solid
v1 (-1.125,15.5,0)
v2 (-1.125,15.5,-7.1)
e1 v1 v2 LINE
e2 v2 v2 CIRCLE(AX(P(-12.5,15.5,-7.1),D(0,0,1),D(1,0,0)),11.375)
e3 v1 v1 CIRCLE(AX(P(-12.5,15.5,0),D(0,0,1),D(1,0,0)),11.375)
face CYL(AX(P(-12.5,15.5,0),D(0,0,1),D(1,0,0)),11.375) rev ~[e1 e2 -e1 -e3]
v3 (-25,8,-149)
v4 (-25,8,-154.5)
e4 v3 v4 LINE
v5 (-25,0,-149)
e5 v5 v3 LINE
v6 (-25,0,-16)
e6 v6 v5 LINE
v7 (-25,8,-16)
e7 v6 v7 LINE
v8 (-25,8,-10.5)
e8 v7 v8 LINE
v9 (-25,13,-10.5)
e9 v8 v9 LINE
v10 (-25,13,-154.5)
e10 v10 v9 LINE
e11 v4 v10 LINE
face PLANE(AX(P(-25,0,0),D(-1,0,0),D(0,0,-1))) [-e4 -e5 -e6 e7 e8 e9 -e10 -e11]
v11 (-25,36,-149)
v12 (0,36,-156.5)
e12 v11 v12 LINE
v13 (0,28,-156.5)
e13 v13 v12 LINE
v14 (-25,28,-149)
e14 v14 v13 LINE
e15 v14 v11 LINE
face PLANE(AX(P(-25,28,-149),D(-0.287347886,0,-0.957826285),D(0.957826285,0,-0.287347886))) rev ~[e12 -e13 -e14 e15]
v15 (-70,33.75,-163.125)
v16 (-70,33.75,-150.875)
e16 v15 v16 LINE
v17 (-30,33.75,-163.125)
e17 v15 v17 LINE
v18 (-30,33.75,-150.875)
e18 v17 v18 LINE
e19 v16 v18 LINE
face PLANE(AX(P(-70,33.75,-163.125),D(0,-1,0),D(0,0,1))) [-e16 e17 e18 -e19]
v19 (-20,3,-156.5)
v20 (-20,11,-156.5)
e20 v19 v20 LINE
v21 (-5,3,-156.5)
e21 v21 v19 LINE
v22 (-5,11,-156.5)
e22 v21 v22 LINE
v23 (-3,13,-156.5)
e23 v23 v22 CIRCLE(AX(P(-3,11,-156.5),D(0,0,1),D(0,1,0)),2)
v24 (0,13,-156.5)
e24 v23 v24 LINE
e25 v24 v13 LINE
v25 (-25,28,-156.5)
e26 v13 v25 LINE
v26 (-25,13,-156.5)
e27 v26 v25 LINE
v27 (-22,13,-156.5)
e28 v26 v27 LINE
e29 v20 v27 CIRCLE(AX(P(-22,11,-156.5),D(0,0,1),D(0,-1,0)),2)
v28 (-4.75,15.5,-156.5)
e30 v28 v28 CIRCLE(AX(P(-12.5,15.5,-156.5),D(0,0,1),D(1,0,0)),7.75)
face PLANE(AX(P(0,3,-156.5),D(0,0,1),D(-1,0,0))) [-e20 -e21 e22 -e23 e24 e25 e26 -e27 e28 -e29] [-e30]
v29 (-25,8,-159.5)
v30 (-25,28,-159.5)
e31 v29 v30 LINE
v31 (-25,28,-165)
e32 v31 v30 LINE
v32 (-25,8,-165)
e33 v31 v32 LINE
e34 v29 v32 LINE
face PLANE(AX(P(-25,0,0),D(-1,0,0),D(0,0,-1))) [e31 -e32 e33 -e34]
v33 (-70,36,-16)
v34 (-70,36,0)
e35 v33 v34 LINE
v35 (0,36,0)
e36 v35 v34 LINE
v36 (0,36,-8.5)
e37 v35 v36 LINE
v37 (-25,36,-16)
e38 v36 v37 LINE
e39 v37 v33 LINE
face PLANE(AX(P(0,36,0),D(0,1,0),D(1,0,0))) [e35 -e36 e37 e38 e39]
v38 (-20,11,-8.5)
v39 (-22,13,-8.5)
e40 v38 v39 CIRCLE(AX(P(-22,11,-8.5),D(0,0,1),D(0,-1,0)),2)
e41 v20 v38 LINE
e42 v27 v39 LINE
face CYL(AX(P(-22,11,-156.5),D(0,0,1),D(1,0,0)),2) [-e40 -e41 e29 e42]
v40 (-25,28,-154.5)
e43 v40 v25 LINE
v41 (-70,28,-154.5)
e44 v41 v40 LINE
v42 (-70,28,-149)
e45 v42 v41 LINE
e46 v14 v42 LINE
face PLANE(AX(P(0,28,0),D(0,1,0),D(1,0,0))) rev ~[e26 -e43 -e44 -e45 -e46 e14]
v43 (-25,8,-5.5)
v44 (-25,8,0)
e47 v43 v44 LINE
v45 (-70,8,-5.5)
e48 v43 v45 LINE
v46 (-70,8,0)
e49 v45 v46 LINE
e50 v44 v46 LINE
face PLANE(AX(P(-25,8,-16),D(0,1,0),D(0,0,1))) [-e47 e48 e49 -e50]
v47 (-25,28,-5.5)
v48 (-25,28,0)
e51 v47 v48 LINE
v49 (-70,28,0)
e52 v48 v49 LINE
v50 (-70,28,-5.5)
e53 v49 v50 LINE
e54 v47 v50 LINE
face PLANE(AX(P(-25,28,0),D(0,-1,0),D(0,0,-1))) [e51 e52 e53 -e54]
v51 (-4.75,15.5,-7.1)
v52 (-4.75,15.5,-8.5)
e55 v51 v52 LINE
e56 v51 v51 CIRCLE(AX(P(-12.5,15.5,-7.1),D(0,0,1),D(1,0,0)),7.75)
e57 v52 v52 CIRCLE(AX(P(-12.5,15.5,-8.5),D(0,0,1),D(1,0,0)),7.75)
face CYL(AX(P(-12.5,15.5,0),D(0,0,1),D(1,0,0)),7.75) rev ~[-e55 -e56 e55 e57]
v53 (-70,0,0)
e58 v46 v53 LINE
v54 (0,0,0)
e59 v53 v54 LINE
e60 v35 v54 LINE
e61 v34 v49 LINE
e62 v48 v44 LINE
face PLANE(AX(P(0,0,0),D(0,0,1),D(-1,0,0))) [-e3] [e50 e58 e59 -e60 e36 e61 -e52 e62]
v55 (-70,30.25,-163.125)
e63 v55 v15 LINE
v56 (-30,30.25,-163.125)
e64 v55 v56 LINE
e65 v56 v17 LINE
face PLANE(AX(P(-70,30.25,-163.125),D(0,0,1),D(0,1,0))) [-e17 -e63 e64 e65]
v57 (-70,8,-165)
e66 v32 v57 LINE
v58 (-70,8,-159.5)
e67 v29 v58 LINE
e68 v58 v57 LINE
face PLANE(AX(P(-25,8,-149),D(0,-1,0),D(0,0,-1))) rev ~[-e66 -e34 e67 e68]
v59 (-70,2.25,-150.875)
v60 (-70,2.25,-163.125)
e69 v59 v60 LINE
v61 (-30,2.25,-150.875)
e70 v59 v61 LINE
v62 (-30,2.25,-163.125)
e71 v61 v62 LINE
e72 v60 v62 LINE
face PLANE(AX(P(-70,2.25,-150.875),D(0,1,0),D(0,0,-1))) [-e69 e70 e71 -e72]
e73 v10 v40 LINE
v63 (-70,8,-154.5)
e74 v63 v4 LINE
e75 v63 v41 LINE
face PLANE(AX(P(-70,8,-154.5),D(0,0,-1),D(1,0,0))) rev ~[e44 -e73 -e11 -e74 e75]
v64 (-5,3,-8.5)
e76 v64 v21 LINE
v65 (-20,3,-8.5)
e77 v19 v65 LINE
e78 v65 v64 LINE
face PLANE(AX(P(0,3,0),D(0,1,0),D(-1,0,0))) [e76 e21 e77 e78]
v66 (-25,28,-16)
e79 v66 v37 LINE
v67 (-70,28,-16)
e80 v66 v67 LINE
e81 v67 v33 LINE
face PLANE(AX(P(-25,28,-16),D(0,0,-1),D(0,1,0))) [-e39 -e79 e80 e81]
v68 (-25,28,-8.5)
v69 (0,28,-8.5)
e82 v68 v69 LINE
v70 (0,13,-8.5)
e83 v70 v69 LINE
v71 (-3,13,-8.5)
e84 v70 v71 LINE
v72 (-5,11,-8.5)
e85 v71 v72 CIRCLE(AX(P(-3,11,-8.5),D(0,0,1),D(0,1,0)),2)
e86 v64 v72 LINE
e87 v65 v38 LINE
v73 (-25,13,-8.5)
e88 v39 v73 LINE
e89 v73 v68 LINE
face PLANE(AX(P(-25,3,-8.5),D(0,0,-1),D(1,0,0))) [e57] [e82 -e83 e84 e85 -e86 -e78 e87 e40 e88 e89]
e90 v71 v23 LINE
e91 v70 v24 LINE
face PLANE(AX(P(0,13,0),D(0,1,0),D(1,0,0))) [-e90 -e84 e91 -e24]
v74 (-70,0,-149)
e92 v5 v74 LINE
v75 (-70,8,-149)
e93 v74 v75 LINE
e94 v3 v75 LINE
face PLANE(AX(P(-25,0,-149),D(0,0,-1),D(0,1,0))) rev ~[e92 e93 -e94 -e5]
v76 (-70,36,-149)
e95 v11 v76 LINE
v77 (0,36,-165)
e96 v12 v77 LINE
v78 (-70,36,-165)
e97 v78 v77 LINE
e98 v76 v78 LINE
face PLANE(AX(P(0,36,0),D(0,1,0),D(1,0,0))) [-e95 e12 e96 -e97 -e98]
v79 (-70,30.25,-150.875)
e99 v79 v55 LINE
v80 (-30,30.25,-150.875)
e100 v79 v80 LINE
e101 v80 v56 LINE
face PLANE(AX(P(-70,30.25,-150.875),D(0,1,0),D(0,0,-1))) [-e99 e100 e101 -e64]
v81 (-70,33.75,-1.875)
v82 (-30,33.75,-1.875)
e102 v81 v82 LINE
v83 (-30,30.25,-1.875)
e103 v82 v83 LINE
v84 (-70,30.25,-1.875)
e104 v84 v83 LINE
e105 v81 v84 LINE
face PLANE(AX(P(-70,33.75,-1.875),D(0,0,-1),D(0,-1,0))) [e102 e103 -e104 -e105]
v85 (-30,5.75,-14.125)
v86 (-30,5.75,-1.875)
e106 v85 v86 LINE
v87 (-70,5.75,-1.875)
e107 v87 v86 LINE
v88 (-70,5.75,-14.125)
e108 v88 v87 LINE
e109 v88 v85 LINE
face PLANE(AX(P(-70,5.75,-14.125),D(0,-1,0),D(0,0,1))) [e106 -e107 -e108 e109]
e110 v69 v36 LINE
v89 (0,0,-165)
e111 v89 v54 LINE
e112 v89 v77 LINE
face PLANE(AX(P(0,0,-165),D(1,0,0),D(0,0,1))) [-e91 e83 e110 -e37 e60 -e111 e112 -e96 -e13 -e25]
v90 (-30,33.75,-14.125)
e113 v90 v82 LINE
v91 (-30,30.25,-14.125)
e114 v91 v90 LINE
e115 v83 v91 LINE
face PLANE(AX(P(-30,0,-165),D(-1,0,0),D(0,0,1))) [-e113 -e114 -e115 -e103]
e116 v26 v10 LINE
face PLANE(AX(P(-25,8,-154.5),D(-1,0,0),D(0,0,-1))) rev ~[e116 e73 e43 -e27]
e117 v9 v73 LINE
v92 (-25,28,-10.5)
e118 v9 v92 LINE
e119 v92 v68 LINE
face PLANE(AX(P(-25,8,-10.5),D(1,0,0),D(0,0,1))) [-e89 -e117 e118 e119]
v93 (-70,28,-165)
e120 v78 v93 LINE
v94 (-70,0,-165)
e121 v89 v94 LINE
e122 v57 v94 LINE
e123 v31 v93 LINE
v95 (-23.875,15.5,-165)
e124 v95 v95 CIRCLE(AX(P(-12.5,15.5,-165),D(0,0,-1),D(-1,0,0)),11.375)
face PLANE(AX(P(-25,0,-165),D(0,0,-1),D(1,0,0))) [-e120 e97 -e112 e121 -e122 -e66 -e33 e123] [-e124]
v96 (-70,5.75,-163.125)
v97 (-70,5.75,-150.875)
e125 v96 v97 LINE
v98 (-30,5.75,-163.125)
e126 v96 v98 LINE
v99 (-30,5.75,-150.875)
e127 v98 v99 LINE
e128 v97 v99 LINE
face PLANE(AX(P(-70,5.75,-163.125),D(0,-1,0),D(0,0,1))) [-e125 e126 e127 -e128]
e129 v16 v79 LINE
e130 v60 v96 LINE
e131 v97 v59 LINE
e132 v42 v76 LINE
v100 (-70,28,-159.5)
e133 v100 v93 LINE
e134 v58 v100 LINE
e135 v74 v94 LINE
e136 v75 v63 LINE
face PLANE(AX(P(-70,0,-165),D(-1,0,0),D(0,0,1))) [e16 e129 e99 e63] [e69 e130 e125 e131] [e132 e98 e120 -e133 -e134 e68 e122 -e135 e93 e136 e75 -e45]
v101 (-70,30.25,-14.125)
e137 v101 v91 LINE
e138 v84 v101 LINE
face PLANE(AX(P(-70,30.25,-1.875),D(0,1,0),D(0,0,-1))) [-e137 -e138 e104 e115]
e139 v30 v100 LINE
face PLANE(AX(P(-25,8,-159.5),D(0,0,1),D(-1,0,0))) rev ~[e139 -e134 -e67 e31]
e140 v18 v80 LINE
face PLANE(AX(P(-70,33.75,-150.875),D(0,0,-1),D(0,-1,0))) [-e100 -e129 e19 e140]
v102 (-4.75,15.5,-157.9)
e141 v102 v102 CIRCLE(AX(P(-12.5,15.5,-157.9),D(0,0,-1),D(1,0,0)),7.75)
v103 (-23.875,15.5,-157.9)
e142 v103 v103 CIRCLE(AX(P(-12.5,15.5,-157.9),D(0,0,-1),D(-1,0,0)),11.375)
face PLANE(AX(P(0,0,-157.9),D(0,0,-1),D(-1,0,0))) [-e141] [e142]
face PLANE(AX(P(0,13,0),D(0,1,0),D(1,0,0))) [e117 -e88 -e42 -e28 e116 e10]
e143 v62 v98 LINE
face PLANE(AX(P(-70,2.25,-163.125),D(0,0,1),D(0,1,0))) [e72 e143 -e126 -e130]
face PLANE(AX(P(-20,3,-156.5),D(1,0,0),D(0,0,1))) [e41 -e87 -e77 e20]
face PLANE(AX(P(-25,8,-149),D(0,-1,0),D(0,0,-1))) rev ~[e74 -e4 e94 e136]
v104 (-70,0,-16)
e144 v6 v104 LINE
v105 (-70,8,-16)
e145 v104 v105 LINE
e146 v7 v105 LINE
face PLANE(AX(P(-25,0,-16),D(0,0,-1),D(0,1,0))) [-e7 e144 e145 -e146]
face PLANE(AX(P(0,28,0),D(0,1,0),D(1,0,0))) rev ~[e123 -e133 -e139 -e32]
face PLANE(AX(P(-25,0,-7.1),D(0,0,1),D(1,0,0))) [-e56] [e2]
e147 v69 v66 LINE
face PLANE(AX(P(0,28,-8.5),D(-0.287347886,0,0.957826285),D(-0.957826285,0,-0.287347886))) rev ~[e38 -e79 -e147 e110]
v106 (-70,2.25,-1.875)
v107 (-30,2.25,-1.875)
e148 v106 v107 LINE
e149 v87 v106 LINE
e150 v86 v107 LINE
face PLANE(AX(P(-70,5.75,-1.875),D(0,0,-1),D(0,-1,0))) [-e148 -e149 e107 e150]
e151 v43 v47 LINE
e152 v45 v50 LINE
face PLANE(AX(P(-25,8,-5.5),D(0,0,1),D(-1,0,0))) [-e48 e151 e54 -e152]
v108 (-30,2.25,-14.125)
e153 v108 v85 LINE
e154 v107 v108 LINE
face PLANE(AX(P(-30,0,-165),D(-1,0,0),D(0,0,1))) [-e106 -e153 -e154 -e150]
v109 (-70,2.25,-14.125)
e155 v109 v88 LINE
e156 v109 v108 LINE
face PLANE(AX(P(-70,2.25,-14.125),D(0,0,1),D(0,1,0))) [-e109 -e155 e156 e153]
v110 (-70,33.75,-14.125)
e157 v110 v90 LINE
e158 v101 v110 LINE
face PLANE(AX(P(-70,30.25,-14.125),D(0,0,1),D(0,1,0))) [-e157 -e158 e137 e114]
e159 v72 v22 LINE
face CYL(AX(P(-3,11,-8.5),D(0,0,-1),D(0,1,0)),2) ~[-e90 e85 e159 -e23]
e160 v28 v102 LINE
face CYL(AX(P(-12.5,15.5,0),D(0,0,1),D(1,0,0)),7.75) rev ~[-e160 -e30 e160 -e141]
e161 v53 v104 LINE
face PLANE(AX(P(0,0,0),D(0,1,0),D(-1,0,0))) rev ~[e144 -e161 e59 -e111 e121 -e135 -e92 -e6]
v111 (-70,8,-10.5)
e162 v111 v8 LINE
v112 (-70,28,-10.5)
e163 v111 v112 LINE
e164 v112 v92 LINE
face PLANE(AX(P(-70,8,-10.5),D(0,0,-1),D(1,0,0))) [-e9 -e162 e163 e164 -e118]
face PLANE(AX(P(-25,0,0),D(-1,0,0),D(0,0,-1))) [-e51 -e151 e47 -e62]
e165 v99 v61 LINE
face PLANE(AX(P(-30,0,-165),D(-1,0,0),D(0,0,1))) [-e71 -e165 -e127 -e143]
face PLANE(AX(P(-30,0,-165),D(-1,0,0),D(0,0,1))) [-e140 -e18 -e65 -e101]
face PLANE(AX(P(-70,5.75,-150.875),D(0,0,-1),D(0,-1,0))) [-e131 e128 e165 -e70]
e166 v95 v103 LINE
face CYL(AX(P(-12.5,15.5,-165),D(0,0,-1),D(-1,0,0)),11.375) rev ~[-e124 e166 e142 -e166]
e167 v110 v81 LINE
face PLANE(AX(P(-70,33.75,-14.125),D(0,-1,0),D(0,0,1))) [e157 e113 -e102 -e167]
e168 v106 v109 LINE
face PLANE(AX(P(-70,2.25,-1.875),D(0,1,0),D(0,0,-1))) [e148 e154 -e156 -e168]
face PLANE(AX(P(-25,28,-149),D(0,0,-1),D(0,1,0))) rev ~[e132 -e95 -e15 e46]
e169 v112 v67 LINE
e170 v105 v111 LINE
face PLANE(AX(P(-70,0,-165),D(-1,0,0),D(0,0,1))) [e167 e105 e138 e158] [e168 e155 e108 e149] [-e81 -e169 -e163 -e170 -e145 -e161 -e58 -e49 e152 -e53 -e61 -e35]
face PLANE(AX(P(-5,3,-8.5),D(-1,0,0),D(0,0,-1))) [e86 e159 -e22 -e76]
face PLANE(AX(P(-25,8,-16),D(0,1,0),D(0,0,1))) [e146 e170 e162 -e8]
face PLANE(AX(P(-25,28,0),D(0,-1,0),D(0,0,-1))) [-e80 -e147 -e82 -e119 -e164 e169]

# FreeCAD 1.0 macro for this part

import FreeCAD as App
import Part
import Sketcher
from FreeCAD import Vector
Q = App.Units.Quantity


def edges_at(feature, points):
    """Names of the edges that pass closest to the given points."""
    edges = feature.Shape.Edges
    near = lambda p: min(range(len(edges)), key=lambda i: edges[i].distToShape(Part.Vertex(*p))[0])
    return sorted({f"Edge{near(p) + 1}" for p in points})

doc = App.newDocument("Part")
body = doc.addObject("PartDesign::Body", "Body")
body.AllowCompound = True

# Sketch on XZ plane
sketch1 = body.newObject("Sketcher::SketchObject", "Sketch")
sketch1.AttachmentSupport = (doc.getObject("XZ_Plane"), [""])
sketch1.MapMode = "FlatFace"
sketch1.addGeometry([
    Part.LineSegment(Vector(-25, 0, 0), Vector(0, 0, 0)),
    Part.LineSegment(Vector(0, 0, 0), Vector(0, -165, 0)),
    Part.LineSegment(Vector(0, -165, 0), Vector(-25, -165, 0)),
    Part.LineSegment(Vector(-25, -165, 0), Vector(-25, 0, 0)),
], False)
sketch1.addConstraint([
    Sketcher.Constraint("Coincident", 0, 2, 1, 1),
    Sketcher.Constraint("Coincident", 1, 2, 2, 1),
    Sketcher.Constraint("Coincident", 2, 2, 3, 1),
    Sketcher.Constraint("Coincident", 3, 2, 0, 1),
    Sketcher.Constraint("Horizontal", 0),
    Sketcher.Constraint("Vertical", 1),
    Sketcher.Constraint("Horizontal", 2),
    Sketcher.Constraint("Vertical", 3),
    Sketcher.Constraint("Coincident", 0, 2, -1, 1),
    Sketcher.Constraint("DistanceX", 0, 1, 0, 2, Q("25 mm")),
    Sketcher.Constraint("DistanceY", 1, 2, 1, 1, Q("165 mm")),
])
pad1 = body.newObject("PartDesign::Pad", "Pad")
pad1.Profile = sketch1
pad1.Length = 3
pad1.Reversed = True

# Sketch on XZ plane
sketch2 = body.newObject("Sketcher::SketchObject", "Sketch001")
sketch2.AttachmentSupport = (doc.getObject("XZ_Plane"), [""])
sketch2.MapMode = "FlatFace"
sketch2.AttachmentOffset = App.Placement(Vector(0, 0, -3), App.Rotation())
sketch2.addGeometry([
    Part.LineSegment(Vector(-25, 0, 0), Vector(0, 0, 0)),  # 0
    Part.LineSegment(Vector(0, 0, 0), Vector(0, -8.5, 0)),  # 1
    Part.LineSegment(Vector(0, -8.5, 0), Vector(-25, -8.5, 0)),  # 2
    Part.LineSegment(Vector(-25, -8.5, 0), Vector(-25, 0, 0)),  # 3
    Part.LineSegment(Vector(-25, -156.5, 0), Vector(0, -156.5, 0)),  # 4
    Part.LineSegment(Vector(0, -156.5, 0), Vector(0, -165, 0)),  # 5
    Part.LineSegment(Vector(0, -165, 0), Vector(-25, -165, 0)),  # 6
    Part.LineSegment(Vector(-25, -165, 0), Vector(-25, -156.5, 0)),  # 7
], False)
sketch2.addConstraint([
    Sketcher.Constraint("Coincident", 0, 2, 1, 1),
    Sketcher.Constraint("Coincident", 1, 2, 2, 1),
    Sketcher.Constraint("Coincident", 2, 2, 3, 1),
    Sketcher.Constraint("Coincident", 3, 2, 0, 1),
    Sketcher.Constraint("Coincident", 4, 2, 5, 1),
    Sketcher.Constraint("Coincident", 5, 2, 6, 1),
    Sketcher.Constraint("Coincident", 6, 2, 7, 1),
    Sketcher.Constraint("Coincident", 7, 2, 4, 1),
    Sketcher.Constraint("Horizontal", 0),
    Sketcher.Constraint("Vertical", 1),
    Sketcher.Constraint("Horizontal", 2),
    Sketcher.Constraint("Vertical", 3),
    Sketcher.Constraint("Horizontal", 4),
    Sketcher.Constraint("Vertical", 5),
    Sketcher.Constraint("Horizontal", 6),
    Sketcher.Constraint("Vertical", 7),
    Sketcher.Constraint("Coincident", 0, 2, -1, 1),
    Sketcher.Constraint("PointOnObject", 4, 2, -2),
    Sketcher.Constraint("Vertical", 3, 2, 6, 2),
    Sketcher.Constraint("Equal", 3, 5),
    Sketcher.Constraint("DistanceY", 1, 2, 1, 1, Q("8.5 mm")),
    Sketcher.Constraint("DistanceX", 0, 1, 0, 2, Q("25 mm")),
    Sketcher.Constraint("DistanceY", 5, 2, -1, 1, Q("165 mm")),
])
pad2 = body.newObject("PartDesign::Pad", "Pad001")
pad2.Profile = sketch2
pad2.Length = 25
pad2.Reversed = True

# Sketch on XY plane
sketch3 = body.newObject("Sketcher::SketchObject", "Sketch002")
sketch3.AttachmentSupport = (doc.getObject("XY_Plane"), [""])
sketch3.MapMode = "FlatFace"
sketch3.addGeometry(Part.Circle(Vector(-12.5, 15.5, 0), Vector(0, 0, 1), 11), False)
sketch3.addConstraint([
    Sketcher.Constraint("Diameter", 0, Q("22 mm")),
    Sketcher.Constraint("DistanceX", 0, 3, -1, 1, Q("12.5 mm")),
    Sketcher.Constraint("DistanceY", -1, 1, 0, 3, Q("15.5 mm")),
])
pocket1 = body.newObject("PartDesign::Pocket", "Pocket")
pocket1.Profile = sketch3
pocket1.Length = 7.1

# Sketch on XY plane
sketch4 = body.newObject("Sketcher::SketchObject", "Sketch003")
sketch4.AttachmentSupport = (doc.getObject("XY_Plane"), [""])
sketch4.MapMode = "FlatFace"
sketch4.addGeometry(Part.Circle(Vector(-12.5, 15.5, 0), Vector(0, 0, 1), 7.75), False)
sketch4.addConstraint([
    Sketcher.Constraint("Diameter", 0, Q("15.5 mm")),
    Sketcher.Constraint("DistanceY", -1, 1, 0, 3, Q("15.5 mm")),
    Sketcher.Constraint("DistanceX", 0, 3, -1, 1, Q("12.5 mm")),
])
pocket2 = body.newObject("PartDesign::Pocket", "Pocket001")
pocket2.Profile = sketch4
pocket2.Length = 165

# Sketch on XY plane
sketch5 = body.newObject("Sketcher::SketchObject", "Sketch004")
sketch5.AttachmentSupport = (doc.getObject("XY_Plane"), [""])
sketch5.MapMode = "FlatFace"
sketch5.AttachmentOffset = App.Placement(Vector(0, 0, -165), App.Rotation())
sketch5.addGeometry([
    Part.Circle(Vector(-12.5, 15.5, 0), Vector(0, 0, 1), 11),
    Part.Circle(Vector(-12.5, 15.5, 0), Vector(0, 0, 1), 7.75),
], False)
sketch5.addConstraint([
    Sketcher.Constraint("Coincident", 1, 3, 0, 3),
    Sketcher.Constraint("Diameter", 0, Q("22 mm")),
    Sketcher.Constraint("Diameter", 1, Q("15.5 mm")),
    Sketcher.Constraint("DistanceX", 0, 3, -1, 1, Q("12.5 mm")),
    Sketcher.Constraint("DistanceY", -1, 1, 0, 3, Q("15.5 mm")),
])
pocket3 = body.newObject("PartDesign::Pocket", "Pocket002")
pocket3.Profile = sketch5
pocket3.Length = 7.1
pocket3.Reversed = True

# Sketch on XZ plane
sketch6 = body.newObject("Sketcher::SketchObject", "Sketch005")
sketch6.AttachmentSupport = (doc.getObject("XZ_Plane"), [""])
sketch6.MapMode = "FlatFace"
sketch6.AttachmentOffset = App.Placement(Vector(0, 0, -3), App.Rotation())
sketch6.addGeometry([
    Part.LineSegment(Vector(-20, -156.5, 0), Vector(-25, -156.5, 0)),  # 0
    Part.LineSegment(Vector(-25, -156.5, 0), Vector(-25, -8.5, 0)),  # 1
    Part.LineSegment(Vector(-25, -8.5, 0), Vector(-20, -8.5, 0)),  # 2
    Part.LineSegment(Vector(-20, -8.5, 0), Vector(-20, -156.5, 0)),  # 3
    Part.LineSegment(Vector(0, -156.5, 0), Vector(-5, -156.5, 0)),  # 4
    Part.LineSegment(Vector(-5, -156.5, 0), Vector(-5, -8.5, 0)),  # 5
    Part.LineSegment(Vector(-5, -8.5, 0), Vector(0, -8.5, 0)),  # 6
    Part.LineSegment(Vector(0, -8.5, 0), Vector(0, -156.5, 0)),  # 7
], False)
sketch6.addConstraint([
    Sketcher.Constraint("Coincident", 0, 2, 1, 1),
    Sketcher.Constraint("Coincident", 1, 2, 2, 1),
    Sketcher.Constraint("Coincident", 2, 2, 3, 1),
    Sketcher.Constraint("Coincident", 3, 2, 0, 1),
    Sketcher.Constraint("Coincident", 4, 2, 5, 1),
    Sketcher.Constraint("Coincident", 5, 2, 6, 1),
    Sketcher.Constraint("Coincident", 6, 2, 7, 1),
    Sketcher.Constraint("Coincident", 7, 2, 4, 1),
    Sketcher.Constraint("Horizontal", 0),
    Sketcher.Constraint("Vertical", 1),
    Sketcher.Constraint("Horizontal", 2),
    Sketcher.Constraint("Vertical", 3),
    Sketcher.Constraint("Horizontal", 4),
    Sketcher.Constraint("Vertical", 5),
    Sketcher.Constraint("Horizontal", 6),
    Sketcher.Constraint("Vertical", 7),
    Sketcher.Constraint("PointOnObject", 6, 2, -2),
    Sketcher.Constraint("Horizontal", 3, 2, 4, 2),
    Sketcher.Constraint("Horizontal", 2, 2, 5, 2),
    Sketcher.Constraint("Equal", 2, 4),
    Sketcher.Constraint("DistanceX", 0, 2, 0, 1, Q("5 mm")),
    Sketcher.Constraint("DistanceY", 1, 1, 1, 2, Q("148 mm")),
    Sketcher.Constraint("DistanceX", 0, 2, -1, 1, Q("25 mm")),
    Sketcher.Constraint("DistanceY", 0, 2, -1, 1, Q("156.5 mm")),
])
pad3 = body.newObject("PartDesign::Pad", "Pad002")
pad3.Profile = sketch6
pad3.Length = 10
pad3.Reversed = True
doc.recompute()

fillet = body.newObject("PartDesign::Fillet", "Fillet")
fillet.Base = (pad3, edges_at(pad3, [(-5, 13, -82.5), (-20, 13, -82.5)]))
fillet.Radius = 2

# Sketch on XY plane
sketch7 = body.newObject("Sketcher::SketchObject", "Sketch006")
sketch7.AttachmentSupport = (doc.getObject("XY_Plane"), [""])
sketch7.MapMode = "FlatFace"
sketch7.addGeometry([
    Part.Circle(Vector(-12.5, 15.5, 0), Vector(0, 0, 1), 11.375),
    Part.Circle(Vector(-12.5, 15.5, 0), Vector(0, 0, 1), 11),
], False)
sketch7.addConstraint([
    Sketcher.Constraint("Coincident", 1, 3, 0, 3),
    Sketcher.Constraint("Diameter", 0, Q("22.75 mm")),
    Sketcher.Constraint("Diameter", 1, Q("22 mm")),
    Sketcher.Constraint("DistanceX", 0, 3, -1, 1, Q("12.5 mm")),
    Sketcher.Constraint("DistanceY", -1, 1, 0, 3, Q("15.5 mm")),
])
pocket4 = body.newObject("PartDesign::Pocket", "Pocket003")
pocket4.Profile = sketch7
pocket4.Length = 7.1

# Sketch on XY plane
sketch8 = body.newObject("Sketcher::SketchObject", "Sketch007")
sketch8.AttachmentSupport = (doc.getObject("XY_Plane"), [""])
sketch8.MapMode = "FlatFace"
sketch8.AttachmentOffset = App.Placement(Vector(0, 0, -165), App.Rotation())
sketch8.addGeometry(Part.Circle(Vector(-12.5, 15.5, 0), Vector(0, 0, 1), 11.375), False)
sketch8.addConstraint([
    Sketcher.Constraint("Diameter", 0, Q("22.75 mm")),
    Sketcher.Constraint("DistanceX", 0, 3, -1, 1, Q("12.5 mm")),
    Sketcher.Constraint("DistanceY", -1, 1, 0, 3, Q("15.5 mm")),
])
pocket5 = body.newObject("PartDesign::Pocket", "Pocket004")
pocket5.Profile = sketch8
pocket5.Length = 7.1
pocket5.Reversed = True

# Sketch on YZ plane
sketch9 = body.newObject("Sketcher::SketchObject", "Sketch008")
sketch9.AttachmentSupport = (doc.getObject("YZ_Plane"), [""])
sketch9.MapMode = "FlatFace"
sketch9.AttachmentOffset = App.Placement(Vector(0, 0, -25), App.Rotation())
sketch9.addGeometry([
    Part.LineSegment(Vector(0, -165, 0), Vector(0, -149, 0)),  # 0
    Part.LineSegment(Vector(0, -149, 0), Vector(8, -149, 0)),  # 1
    Part.LineSegment(Vector(8, -149, 0), Vector(8, -165, 0)),  # 2
    Part.LineSegment(Vector(8, -165, 0), Vector(0, -165, 0)),  # 3
    Part.LineSegment(Vector(0, -16, 0), Vector(0, 0, 0)),  # 4
    Part.LineSegment(Vector(0, 0, 0), Vector(8, 0, 0)),  # 5
    Part.LineSegment(Vector(8, 0, 0), Vector(8, -16, 0)),  # 6
    Part.LineSegment(Vector(8, -16, 0), Vector(0, -16, 0)),  # 7
    Part.LineSegment(Vector(28, -165, 0), Vector(28, -149, 0)),  # 8
    Part.LineSegment(Vector(28, -149, 0), Vector(36, -149, 0)),  # 9
    Part.LineSegment(Vector(36, -149, 0), Vector(36, -165, 0)),  # 10
    Part.LineSegment(Vector(36, -165, 0), Vector(28, -165, 0)),  # 11
    Part.LineSegment(Vector(28, -16, 0), Vector(28, 0, 0)),  # 12
    Part.LineSegment(Vector(28, 0, 0), Vector(36, 0, 0)),  # 13
    Part.LineSegment(Vector(36, 0, 0), Vector(36, -16, 0)),  # 14
    Part.LineSegment(Vector(36, -16, 0), Vector(28, -16, 0)),  # 15
], False)
sketch9.addConstraint([
    Sketcher.Constraint("Coincident", 0, 2, 1, 1),
    Sketcher.Constraint("Coincident", 1, 2, 2, 1),
    Sketcher.Constraint("Coincident", 2, 2, 3, 1),
    Sketcher.Constraint("Coincident", 3, 2, 0, 1),
    Sketcher.Constraint("Coincident", 4, 2, 5, 1),
    Sketcher.Constraint("Coincident", 5, 2, 6, 1),
    Sketcher.Constraint("Coincident", 6, 2, 7, 1),
    Sketcher.Constraint("Coincident", 7, 2, 4, 1),
    Sketcher.Constraint("Coincident", 8, 2, 9, 1),
    Sketcher.Constraint("Coincident", 9, 2, 10, 1),
    Sketcher.Constraint("Coincident", 10, 2, 11, 1),
    Sketcher.Constraint("Coincident", 11, 2, 8, 1),
    Sketcher.Constraint("Coincident", 12, 2, 13, 1),
    Sketcher.Constraint("Coincident", 13, 2, 14, 1),
    Sketcher.Constraint("Coincident", 14, 2, 15, 1),
    Sketcher.Constraint("Coincident", 15, 2, 12, 1),
    Sketcher.Constraint("Vertical", 0),
    Sketcher.Constraint("Horizontal", 1),
    Sketcher.Constraint("Vertical", 2),
    Sketcher.Constraint("Horizontal", 3),
    Sketcher.Constraint("Vertical", 4),
    Sketcher.Constraint("Horizontal", 5),
    Sketcher.Constraint("Vertical", 6),
    Sketcher.Constraint("Horizontal", 7),
    Sketcher.Constraint("Vertical", 8),
    Sketcher.Constraint("Horizontal", 9),
    Sketcher.Constraint("Vertical", 10),
    Sketcher.Constraint("Horizontal", 11),
    Sketcher.Constraint("Vertical", 12),
    Sketcher.Constraint("Horizontal", 13),
    Sketcher.Constraint("Vertical", 14),
    Sketcher.Constraint("Horizontal", 15),
    Sketcher.Constraint("Coincident", 4, 2, -1, 1),
    Sketcher.Constraint("PointOnObject", 0, 2, -2),
    Sketcher.Constraint("PointOnObject", 12, 2, -1),
    Sketcher.Constraint("Horizontal", 1, 2, 8, 2),
    Sketcher.Constraint("Horizontal", 3, 2, 10, 2),
    Sketcher.Constraint("Horizontal", 7, 2, 14, 2),
    Sketcher.Constraint("Vertical", 2, 2, 5, 2),
    Sketcher.Constraint("Vertical", 11, 2, 12, 2),
    Sketcher.Constraint("Vertical", 10, 2, 13, 2),
    Sketcher.Constraint("Equal", 7, 9),
    Sketcher.Constraint("Equal", 2, 4),
    Sketcher.Constraint("DistanceX", 1, 1, 1, 2, Q("8 mm")),
    Sketcher.Constraint("DistanceY", 0, 1, 0, 2, Q("16 mm")),
    Sketcher.Constraint("DistanceY", 0, 2, -1, 1, Q("149 mm")),
    Sketcher.Constraint("DistanceX", -1, 1, 8, 2, Q("28 mm")),
])
pad4 = body.newObject("PartDesign::Pad", "Pad003")
pad4.Profile = sketch9
pad4.Length = 45
pad4.Reversed = True

# Sketch on XZ plane
sketch10 = body.newObject("Sketcher::SketchObject", "Sketch009")
sketch10.AttachmentSupport = (doc.getObject("XZ_Plane"), [""])
sketch10.MapMode = "FlatFace"
sketch10.AttachmentOffset = App.Placement(Vector(0, 0, -28), App.Rotation())
sketch10.addGeometry([
    Part.LineSegment(Vector(-25, -165, 0), Vector(-25, -149, 0)),  # 0
    Part.LineSegment(Vector(-25, -149, 0), Vector(0, -156.5, 0)),  # 1
    Part.LineSegment(Vector(0, -156.5, 0), Vector(0, -165, 0)),  # 2
    Part.LineSegment(Vector(0, -165, 0), Vector(-25, -165, 0)),  # 3
    Part.LineSegment(Vector(-25, 0, 0), Vector(0, 0, 0)),  # 4
    Part.LineSegment(Vector(0, 0, 0), Vector(0, -8.5, 0)),  # 5
    Part.LineSegment(Vector(0, -8.5, 0), Vector(-25, -16, 0)),  # 6
    Part.LineSegment(Vector(-25, -16, 0), Vector(-25, 0, 0)),  # 7
], False)
sketch10.addConstraint([
    Sketcher.Constraint("Coincident", 0, 2, 1, 1),
    Sketcher.Constraint("Coincident", 1, 2, 2, 1),
    Sketcher.Constraint("Coincident", 2, 2, 3, 1),
    Sketcher.Constraint("Coincident", 3, 2, 0, 1),
    Sketcher.Constraint("Coincident", 4, 2, 5, 1),
    Sketcher.Constraint("Coincident", 5, 2, 6, 1),
    Sketcher.Constraint("Coincident", 6, 2, 7, 1),
    Sketcher.Constraint("Coincident", 7, 2, 4, 1),
    Sketcher.Constraint("Vertical", 0),
    Sketcher.Constraint("Vertical", 2),
    Sketcher.Constraint("Horizontal", 3),
    Sketcher.Constraint("Horizontal", 4),
    Sketcher.Constraint("Vertical", 5),
    Sketcher.Constraint("Vertical", 7),
    Sketcher.Constraint("Coincident", 4, 2, -1, 1),
    Sketcher.Constraint("PointOnObject", 1, 2, -2),
    Sketcher.Constraint("Vertical", 3, 2, 6, 2),
    Sketcher.Constraint("Equal", 2, 5),
    Sketcher.Constraint("Equal", 0, 7),
    Sketcher.Constraint("DistanceX", 3, 2, 3, 1, Q("25 mm")),
    Sketcher.Constraint("DistanceY", 0, 1, 0, 2, Q("16 mm")),
    Sketcher.Constraint("DistanceY", 2, 2, 2, 1, Q("8.5 mm")),
    Sketcher.Constraint("DistanceY", 0, 2, -1, 1, Q("149 mm")),
])
pad5 = body.newObject("PartDesign::Pad", "Pad004")
pad5.Profile = sketch10
pad5.Length = 8
pad5.Reversed = True

# Sketch on YZ plane
sketch11 = body.newObject("Sketcher::SketchObject", "Sketch010")
sketch11.AttachmentSupport = (doc.getObject("YZ_Plane"), [""])
sketch11.MapMode = "FlatFace"
sketch11.AttachmentOffset = App.Placement(Vector(0, 0, -70), App.Rotation())
sketch11.addGeometry([
    Part.LineSegment(Vector(2.25, -163.125, 0), Vector(2.25, -150.875, 0)),  # 0
    Part.LineSegment(Vector(2.25, -150.875, 0), Vector(5.75, -150.875, 0)),  # 1
    Part.LineSegment(Vector(5.75, -150.875, 0), Vector(5.75, -163.125, 0)),  # 2
    Part.LineSegment(Vector(5.75, -163.125, 0), Vector(2.25, -163.125, 0)),  # 3
    Part.LineSegment(Vector(30.25, -163.125, 0), Vector(30.25, -150.875, 0)),  # 4
    Part.LineSegment(Vector(30.25, -150.875, 0), Vector(33.75, -150.875, 0)),  # 5
    Part.LineSegment(Vector(33.75, -150.875, 0), Vector(33.75, -163.125, 0)),  # 6
    Part.LineSegment(Vector(33.75, -163.125, 0), Vector(30.25, -163.125, 0)),  # 7
    Part.LineSegment(Vector(30.25, -14.125, 0), Vector(30.25, -1.875, 0)),  # 8
    Part.LineSegment(Vector(30.25, -1.875, 0), Vector(33.75, -1.875, 0)),  # 9
    Part.LineSegment(Vector(33.75, -1.875, 0), Vector(33.75, -14.125, 0)),  # 10
    Part.LineSegment(Vector(33.75, -14.125, 0), Vector(30.25, -14.125, 0)),  # 11
    Part.LineSegment(Vector(2.25, -14.125, 0), Vector(2.25, -1.875, 0)),  # 12
    Part.LineSegment(Vector(2.25, -1.875, 0), Vector(5.75, -1.875, 0)),  # 13
    Part.LineSegment(Vector(5.75, -1.875, 0), Vector(5.75, -14.125, 0)),  # 14
    Part.LineSegment(Vector(5.75, -14.125, 0), Vector(2.25, -14.125, 0)),  # 15
], False)
sketch11.addConstraint([
    Sketcher.Constraint("Coincident", 0, 2, 1, 1),
    Sketcher.Constraint("Coincident", 1, 2, 2, 1),
    Sketcher.Constraint("Coincident", 2, 2, 3, 1),
    Sketcher.Constraint("Coincident", 3, 2, 0, 1),
    Sketcher.Constraint("Coincident", 4, 2, 5, 1),
    Sketcher.Constraint("Coincident", 5, 2, 6, 1),
    Sketcher.Constraint("Coincident", 6, 2, 7, 1),
    Sketcher.Constraint("Coincident", 7, 2, 4, 1),
    Sketcher.Constraint("Coincident", 8, 2, 9, 1),
    Sketcher.Constraint("Coincident", 9, 2, 10, 1),
    Sketcher.Constraint("Coincident", 10, 2, 11, 1),
    Sketcher.Constraint("Coincident", 11, 2, 8, 1),
    Sketcher.Constraint("Coincident", 12, 2, 13, 1),
    Sketcher.Constraint("Coincident", 13, 2, 14, 1),
    Sketcher.Constraint("Coincident", 14, 2, 15, 1),
    Sketcher.Constraint("Coincident", 15, 2, 12, 1),
    Sketcher.Constraint("Vertical", 0),
    Sketcher.Constraint("Horizontal", 1),
    Sketcher.Constraint("Vertical", 2),
    Sketcher.Constraint("Horizontal", 3),
    Sketcher.Constraint("Vertical", 4),
    Sketcher.Constraint("Horizontal", 5),
    Sketcher.Constraint("Vertical", 6),
    Sketcher.Constraint("Horizontal", 7),
    Sketcher.Constraint("Vertical", 8),
    Sketcher.Constraint("Horizontal", 9),
    Sketcher.Constraint("Vertical", 10),
    Sketcher.Constraint("Horizontal", 11),
    Sketcher.Constraint("Vertical", 12),
    Sketcher.Constraint("Horizontal", 13),
    Sketcher.Constraint("Vertical", 14),
    Sketcher.Constraint("Horizontal", 15),
    Sketcher.Constraint("Horizontal", 1, 2, 4, 2),
    Sketcher.Constraint("Horizontal", 3, 2, 6, 2),
    Sketcher.Constraint("Horizontal", 9, 2, 12, 2),
    Sketcher.Constraint("Horizontal", 11, 2, 14, 2),
    Sketcher.Constraint("Vertical", 7, 2, 8, 2),
    Sketcher.Constraint("Vertical", 6, 2, 9, 2),
    Sketcher.Constraint("Vertical", 3, 2, 12, 2),
    Sketcher.Constraint("Vertical", 2, 2, 13, 2),
    Sketcher.Constraint("Equal", 3, 5),
    Sketcher.Constraint("Equal", 6, 8),
    Sketcher.Constraint("DistanceX", 1, 1, 1, 2, Q("3.5 mm")),
    Sketcher.Constraint("DistanceY", 0, 1, 0, 2, Q("12.25 mm")),
    Sketcher.Constraint("DistanceX", 0, 2, 4, 2, Q("28 mm")),
    Sketcher.Constraint("DistanceY", 4, 2, 8, 2, Q("149 mm")),
    Sketcher.Constraint("DistanceX", -1, 1, 0, 2, Q("2.25 mm")),
    Sketcher.Constraint("DistanceY", 0, 2, -1, 1, Q("150.875 mm")),
])
pocket6 = body.newObject("PartDesign::Pocket", "Pocket005")
pocket6.Profile = sketch11
pocket6.Length = 40
pocket6.Reversed = True

# Sketch on XZ plane
sketch12 = body.newObject("Sketcher::SketchObject", "Sketch011")
sketch12.AttachmentSupport = (doc.getObject("XZ_Plane"), [""])
sketch12.MapMode = "FlatFace"
sketch12.AttachmentOffset = App.Placement(Vector(0, 0, -8), App.Rotation())
sketch12.addGeometry([
    Part.LineSegment(Vector(-70, -159.5, 0), Vector(-70, -154.5, 0)),  # 0
    Part.LineSegment(Vector(-70, -154.5, 0), Vector(-25, -154.5, 0)),  # 1
    Part.LineSegment(Vector(-25, -154.5, 0), Vector(-25, -159.5, 0)),  # 2
    Part.LineSegment(Vector(-25, -159.5, 0), Vector(-70, -159.5, 0)),  # 3
    Part.LineSegment(Vector(-70, -10.5, 0), Vector(-70, -5.5, 0)),  # 4
    Part.LineSegment(Vector(-70, -5.5, 0), Vector(-25, -5.5, 0)),  # 5
    Part.LineSegment(Vector(-25, -5.5, 0), Vector(-25, -10.5, 0)),  # 6
    Part.LineSegment(Vector(-25, -10.5, 0), Vector(-70, -10.5, 0)),  # 7
], False)
sketch12.addConstraint([
    Sketcher.Constraint("Coincident", 0, 2, 1, 1),
    Sketcher.Constraint("Coincident", 1, 2, 2, 1),
    Sketcher.Constraint("Coincident", 2, 2, 3, 1),
    Sketcher.Constraint("Coincident", 3, 2, 0, 1),
    Sketcher.Constraint("Coincident", 4, 2, 5, 1),
    Sketcher.Constraint("Coincident", 5, 2, 6, 1),
    Sketcher.Constraint("Coincident", 6, 2, 7, 1),
    Sketcher.Constraint("Coincident", 7, 2, 4, 1),
    Sketcher.Constraint("Vertical", 0),
    Sketcher.Constraint("Horizontal", 1),
    Sketcher.Constraint("Vertical", 2),
    Sketcher.Constraint("Horizontal", 3),
    Sketcher.Constraint("Vertical", 4),
    Sketcher.Constraint("Horizontal", 5),
    Sketcher.Constraint("Vertical", 6),
    Sketcher.Constraint("Horizontal", 7),
    Sketcher.Constraint("Vertical", 3, 2, 4, 2),
    Sketcher.Constraint("Vertical", 2, 2, 5, 2),
    Sketcher.Constraint("Equal", 2, 4),
    Sketcher.Constraint("DistanceY", 0, 1, 0, 2, Q("5 mm")),
    Sketcher.Constraint("DistanceX", 1, 1, 1, 2, Q("45 mm")),
    Sketcher.Constraint("DistanceX", 0, 2, -1, 1, Q("70 mm")),
    Sketcher.Constraint("DistanceY", 0, 2, 4, 2, Q("149 mm")),
    Sketcher.Constraint("DistanceY", 0, 2, -1, 1, Q("154.5 mm")),
])
pad6 = body.newObject("PartDesign::Pad", "Pad005")
pad6.Profile = sketch12
pad6.Length = 20
pad6.Reversed = True

doc.recompute()
